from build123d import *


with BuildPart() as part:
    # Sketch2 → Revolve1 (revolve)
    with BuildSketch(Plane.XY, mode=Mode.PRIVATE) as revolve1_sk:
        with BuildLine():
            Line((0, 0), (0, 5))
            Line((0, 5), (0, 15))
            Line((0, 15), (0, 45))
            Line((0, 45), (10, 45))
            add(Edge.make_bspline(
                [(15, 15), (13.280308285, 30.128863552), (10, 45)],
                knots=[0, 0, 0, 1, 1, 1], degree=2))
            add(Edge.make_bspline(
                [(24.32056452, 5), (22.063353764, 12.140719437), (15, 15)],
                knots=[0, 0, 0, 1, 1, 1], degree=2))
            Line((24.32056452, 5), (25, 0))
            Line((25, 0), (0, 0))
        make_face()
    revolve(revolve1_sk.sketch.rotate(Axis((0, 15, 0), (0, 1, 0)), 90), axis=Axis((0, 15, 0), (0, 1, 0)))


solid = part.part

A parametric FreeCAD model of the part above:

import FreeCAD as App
import Part
import Sketcher

V = App.Vector

doc = App.newDocument("Part")
body = doc.addObject("PartDesign::Body", "Body")

sketch1 = body.newObject("Sketcher::SketchObject", "Sketch")
sketch1.AttachmentSupport = (doc.getObject("XY_Plane"), [""])
sketch1.MapMode = "FlatFace"
sketch1.addGeometry(Part.LineSegment(V(0, 45, 0), V(0, 0, 0)), False)
sketch1.addGeometry(Part.LineSegment(V(0, 0, 0), V(25, 0, 0)), False)
sketch1.addGeometry(Part.LineSegment(V(25, 0, 0), V(24.320565, 5, 0)), False)
sketch1.addGeometry(Part.BSplineCurve([V(24.320565, 5, 0), V(22.063354, 12.140719, 0), V(15, 15, 0)], [3, 3], [0, 1], False, 2, [1, 1, 1], False), False)
sketch1.addGeometry(Part.BSplineCurve([V(15, 15, 0), V(13.280308, 30.128864, 0), V(10, 45, 0)], [3, 3], [0, 1], False, 2, [1, 1, 1], False), False)
sketch1.addGeometry(Part.LineSegment(V(10, 45, 0), V(0, 45, 0)), False)
sketch1.addConstraint(Sketcher.Constraint("Block", 3))
sketch1.addConstraint(Sketcher.Constraint("Block", 4))
sketch1.addConstraint(Sketcher.Constraint("Coincident", 0, 2, 1, 1))
sketch1.addConstraint(Sketcher.Constraint("Coincident", 1, 2, 2, 1))
sketch1.addConstraint(Sketcher.Constraint("Coincident", 2, 2, 3, 1))
sketch1.addConstraint(Sketcher.Constraint("Coincident", 4, 2, 5, 1))
sketch1.addConstraint(Sketcher.Constraint("Coincident", 5, 2, 0, 1))
sketch1.addConstraint(Sketcher.Constraint("Vertical", 0))
sketch1.addConstraint(Sketcher.Constraint("Horizontal", 1))
sketch1.addConstraint(Sketcher.Constraint("Horizontal", 5))
sketch1.addConstraint(Sketcher.Constraint("Coincident", 0, 2, -1, 1))
sketch1.addConstraint(Sketcher.Constraint("DistanceX", 1, 1, 1, 2, 25.0))
revolution = body.newObject("PartDesign::Revolution", "Revolution")
revolution.Profile = sketch1
revolution.ReferenceAxis = (sketch1, ["V_Axis"])
revolution.Angle = 360

doc.recompute()
